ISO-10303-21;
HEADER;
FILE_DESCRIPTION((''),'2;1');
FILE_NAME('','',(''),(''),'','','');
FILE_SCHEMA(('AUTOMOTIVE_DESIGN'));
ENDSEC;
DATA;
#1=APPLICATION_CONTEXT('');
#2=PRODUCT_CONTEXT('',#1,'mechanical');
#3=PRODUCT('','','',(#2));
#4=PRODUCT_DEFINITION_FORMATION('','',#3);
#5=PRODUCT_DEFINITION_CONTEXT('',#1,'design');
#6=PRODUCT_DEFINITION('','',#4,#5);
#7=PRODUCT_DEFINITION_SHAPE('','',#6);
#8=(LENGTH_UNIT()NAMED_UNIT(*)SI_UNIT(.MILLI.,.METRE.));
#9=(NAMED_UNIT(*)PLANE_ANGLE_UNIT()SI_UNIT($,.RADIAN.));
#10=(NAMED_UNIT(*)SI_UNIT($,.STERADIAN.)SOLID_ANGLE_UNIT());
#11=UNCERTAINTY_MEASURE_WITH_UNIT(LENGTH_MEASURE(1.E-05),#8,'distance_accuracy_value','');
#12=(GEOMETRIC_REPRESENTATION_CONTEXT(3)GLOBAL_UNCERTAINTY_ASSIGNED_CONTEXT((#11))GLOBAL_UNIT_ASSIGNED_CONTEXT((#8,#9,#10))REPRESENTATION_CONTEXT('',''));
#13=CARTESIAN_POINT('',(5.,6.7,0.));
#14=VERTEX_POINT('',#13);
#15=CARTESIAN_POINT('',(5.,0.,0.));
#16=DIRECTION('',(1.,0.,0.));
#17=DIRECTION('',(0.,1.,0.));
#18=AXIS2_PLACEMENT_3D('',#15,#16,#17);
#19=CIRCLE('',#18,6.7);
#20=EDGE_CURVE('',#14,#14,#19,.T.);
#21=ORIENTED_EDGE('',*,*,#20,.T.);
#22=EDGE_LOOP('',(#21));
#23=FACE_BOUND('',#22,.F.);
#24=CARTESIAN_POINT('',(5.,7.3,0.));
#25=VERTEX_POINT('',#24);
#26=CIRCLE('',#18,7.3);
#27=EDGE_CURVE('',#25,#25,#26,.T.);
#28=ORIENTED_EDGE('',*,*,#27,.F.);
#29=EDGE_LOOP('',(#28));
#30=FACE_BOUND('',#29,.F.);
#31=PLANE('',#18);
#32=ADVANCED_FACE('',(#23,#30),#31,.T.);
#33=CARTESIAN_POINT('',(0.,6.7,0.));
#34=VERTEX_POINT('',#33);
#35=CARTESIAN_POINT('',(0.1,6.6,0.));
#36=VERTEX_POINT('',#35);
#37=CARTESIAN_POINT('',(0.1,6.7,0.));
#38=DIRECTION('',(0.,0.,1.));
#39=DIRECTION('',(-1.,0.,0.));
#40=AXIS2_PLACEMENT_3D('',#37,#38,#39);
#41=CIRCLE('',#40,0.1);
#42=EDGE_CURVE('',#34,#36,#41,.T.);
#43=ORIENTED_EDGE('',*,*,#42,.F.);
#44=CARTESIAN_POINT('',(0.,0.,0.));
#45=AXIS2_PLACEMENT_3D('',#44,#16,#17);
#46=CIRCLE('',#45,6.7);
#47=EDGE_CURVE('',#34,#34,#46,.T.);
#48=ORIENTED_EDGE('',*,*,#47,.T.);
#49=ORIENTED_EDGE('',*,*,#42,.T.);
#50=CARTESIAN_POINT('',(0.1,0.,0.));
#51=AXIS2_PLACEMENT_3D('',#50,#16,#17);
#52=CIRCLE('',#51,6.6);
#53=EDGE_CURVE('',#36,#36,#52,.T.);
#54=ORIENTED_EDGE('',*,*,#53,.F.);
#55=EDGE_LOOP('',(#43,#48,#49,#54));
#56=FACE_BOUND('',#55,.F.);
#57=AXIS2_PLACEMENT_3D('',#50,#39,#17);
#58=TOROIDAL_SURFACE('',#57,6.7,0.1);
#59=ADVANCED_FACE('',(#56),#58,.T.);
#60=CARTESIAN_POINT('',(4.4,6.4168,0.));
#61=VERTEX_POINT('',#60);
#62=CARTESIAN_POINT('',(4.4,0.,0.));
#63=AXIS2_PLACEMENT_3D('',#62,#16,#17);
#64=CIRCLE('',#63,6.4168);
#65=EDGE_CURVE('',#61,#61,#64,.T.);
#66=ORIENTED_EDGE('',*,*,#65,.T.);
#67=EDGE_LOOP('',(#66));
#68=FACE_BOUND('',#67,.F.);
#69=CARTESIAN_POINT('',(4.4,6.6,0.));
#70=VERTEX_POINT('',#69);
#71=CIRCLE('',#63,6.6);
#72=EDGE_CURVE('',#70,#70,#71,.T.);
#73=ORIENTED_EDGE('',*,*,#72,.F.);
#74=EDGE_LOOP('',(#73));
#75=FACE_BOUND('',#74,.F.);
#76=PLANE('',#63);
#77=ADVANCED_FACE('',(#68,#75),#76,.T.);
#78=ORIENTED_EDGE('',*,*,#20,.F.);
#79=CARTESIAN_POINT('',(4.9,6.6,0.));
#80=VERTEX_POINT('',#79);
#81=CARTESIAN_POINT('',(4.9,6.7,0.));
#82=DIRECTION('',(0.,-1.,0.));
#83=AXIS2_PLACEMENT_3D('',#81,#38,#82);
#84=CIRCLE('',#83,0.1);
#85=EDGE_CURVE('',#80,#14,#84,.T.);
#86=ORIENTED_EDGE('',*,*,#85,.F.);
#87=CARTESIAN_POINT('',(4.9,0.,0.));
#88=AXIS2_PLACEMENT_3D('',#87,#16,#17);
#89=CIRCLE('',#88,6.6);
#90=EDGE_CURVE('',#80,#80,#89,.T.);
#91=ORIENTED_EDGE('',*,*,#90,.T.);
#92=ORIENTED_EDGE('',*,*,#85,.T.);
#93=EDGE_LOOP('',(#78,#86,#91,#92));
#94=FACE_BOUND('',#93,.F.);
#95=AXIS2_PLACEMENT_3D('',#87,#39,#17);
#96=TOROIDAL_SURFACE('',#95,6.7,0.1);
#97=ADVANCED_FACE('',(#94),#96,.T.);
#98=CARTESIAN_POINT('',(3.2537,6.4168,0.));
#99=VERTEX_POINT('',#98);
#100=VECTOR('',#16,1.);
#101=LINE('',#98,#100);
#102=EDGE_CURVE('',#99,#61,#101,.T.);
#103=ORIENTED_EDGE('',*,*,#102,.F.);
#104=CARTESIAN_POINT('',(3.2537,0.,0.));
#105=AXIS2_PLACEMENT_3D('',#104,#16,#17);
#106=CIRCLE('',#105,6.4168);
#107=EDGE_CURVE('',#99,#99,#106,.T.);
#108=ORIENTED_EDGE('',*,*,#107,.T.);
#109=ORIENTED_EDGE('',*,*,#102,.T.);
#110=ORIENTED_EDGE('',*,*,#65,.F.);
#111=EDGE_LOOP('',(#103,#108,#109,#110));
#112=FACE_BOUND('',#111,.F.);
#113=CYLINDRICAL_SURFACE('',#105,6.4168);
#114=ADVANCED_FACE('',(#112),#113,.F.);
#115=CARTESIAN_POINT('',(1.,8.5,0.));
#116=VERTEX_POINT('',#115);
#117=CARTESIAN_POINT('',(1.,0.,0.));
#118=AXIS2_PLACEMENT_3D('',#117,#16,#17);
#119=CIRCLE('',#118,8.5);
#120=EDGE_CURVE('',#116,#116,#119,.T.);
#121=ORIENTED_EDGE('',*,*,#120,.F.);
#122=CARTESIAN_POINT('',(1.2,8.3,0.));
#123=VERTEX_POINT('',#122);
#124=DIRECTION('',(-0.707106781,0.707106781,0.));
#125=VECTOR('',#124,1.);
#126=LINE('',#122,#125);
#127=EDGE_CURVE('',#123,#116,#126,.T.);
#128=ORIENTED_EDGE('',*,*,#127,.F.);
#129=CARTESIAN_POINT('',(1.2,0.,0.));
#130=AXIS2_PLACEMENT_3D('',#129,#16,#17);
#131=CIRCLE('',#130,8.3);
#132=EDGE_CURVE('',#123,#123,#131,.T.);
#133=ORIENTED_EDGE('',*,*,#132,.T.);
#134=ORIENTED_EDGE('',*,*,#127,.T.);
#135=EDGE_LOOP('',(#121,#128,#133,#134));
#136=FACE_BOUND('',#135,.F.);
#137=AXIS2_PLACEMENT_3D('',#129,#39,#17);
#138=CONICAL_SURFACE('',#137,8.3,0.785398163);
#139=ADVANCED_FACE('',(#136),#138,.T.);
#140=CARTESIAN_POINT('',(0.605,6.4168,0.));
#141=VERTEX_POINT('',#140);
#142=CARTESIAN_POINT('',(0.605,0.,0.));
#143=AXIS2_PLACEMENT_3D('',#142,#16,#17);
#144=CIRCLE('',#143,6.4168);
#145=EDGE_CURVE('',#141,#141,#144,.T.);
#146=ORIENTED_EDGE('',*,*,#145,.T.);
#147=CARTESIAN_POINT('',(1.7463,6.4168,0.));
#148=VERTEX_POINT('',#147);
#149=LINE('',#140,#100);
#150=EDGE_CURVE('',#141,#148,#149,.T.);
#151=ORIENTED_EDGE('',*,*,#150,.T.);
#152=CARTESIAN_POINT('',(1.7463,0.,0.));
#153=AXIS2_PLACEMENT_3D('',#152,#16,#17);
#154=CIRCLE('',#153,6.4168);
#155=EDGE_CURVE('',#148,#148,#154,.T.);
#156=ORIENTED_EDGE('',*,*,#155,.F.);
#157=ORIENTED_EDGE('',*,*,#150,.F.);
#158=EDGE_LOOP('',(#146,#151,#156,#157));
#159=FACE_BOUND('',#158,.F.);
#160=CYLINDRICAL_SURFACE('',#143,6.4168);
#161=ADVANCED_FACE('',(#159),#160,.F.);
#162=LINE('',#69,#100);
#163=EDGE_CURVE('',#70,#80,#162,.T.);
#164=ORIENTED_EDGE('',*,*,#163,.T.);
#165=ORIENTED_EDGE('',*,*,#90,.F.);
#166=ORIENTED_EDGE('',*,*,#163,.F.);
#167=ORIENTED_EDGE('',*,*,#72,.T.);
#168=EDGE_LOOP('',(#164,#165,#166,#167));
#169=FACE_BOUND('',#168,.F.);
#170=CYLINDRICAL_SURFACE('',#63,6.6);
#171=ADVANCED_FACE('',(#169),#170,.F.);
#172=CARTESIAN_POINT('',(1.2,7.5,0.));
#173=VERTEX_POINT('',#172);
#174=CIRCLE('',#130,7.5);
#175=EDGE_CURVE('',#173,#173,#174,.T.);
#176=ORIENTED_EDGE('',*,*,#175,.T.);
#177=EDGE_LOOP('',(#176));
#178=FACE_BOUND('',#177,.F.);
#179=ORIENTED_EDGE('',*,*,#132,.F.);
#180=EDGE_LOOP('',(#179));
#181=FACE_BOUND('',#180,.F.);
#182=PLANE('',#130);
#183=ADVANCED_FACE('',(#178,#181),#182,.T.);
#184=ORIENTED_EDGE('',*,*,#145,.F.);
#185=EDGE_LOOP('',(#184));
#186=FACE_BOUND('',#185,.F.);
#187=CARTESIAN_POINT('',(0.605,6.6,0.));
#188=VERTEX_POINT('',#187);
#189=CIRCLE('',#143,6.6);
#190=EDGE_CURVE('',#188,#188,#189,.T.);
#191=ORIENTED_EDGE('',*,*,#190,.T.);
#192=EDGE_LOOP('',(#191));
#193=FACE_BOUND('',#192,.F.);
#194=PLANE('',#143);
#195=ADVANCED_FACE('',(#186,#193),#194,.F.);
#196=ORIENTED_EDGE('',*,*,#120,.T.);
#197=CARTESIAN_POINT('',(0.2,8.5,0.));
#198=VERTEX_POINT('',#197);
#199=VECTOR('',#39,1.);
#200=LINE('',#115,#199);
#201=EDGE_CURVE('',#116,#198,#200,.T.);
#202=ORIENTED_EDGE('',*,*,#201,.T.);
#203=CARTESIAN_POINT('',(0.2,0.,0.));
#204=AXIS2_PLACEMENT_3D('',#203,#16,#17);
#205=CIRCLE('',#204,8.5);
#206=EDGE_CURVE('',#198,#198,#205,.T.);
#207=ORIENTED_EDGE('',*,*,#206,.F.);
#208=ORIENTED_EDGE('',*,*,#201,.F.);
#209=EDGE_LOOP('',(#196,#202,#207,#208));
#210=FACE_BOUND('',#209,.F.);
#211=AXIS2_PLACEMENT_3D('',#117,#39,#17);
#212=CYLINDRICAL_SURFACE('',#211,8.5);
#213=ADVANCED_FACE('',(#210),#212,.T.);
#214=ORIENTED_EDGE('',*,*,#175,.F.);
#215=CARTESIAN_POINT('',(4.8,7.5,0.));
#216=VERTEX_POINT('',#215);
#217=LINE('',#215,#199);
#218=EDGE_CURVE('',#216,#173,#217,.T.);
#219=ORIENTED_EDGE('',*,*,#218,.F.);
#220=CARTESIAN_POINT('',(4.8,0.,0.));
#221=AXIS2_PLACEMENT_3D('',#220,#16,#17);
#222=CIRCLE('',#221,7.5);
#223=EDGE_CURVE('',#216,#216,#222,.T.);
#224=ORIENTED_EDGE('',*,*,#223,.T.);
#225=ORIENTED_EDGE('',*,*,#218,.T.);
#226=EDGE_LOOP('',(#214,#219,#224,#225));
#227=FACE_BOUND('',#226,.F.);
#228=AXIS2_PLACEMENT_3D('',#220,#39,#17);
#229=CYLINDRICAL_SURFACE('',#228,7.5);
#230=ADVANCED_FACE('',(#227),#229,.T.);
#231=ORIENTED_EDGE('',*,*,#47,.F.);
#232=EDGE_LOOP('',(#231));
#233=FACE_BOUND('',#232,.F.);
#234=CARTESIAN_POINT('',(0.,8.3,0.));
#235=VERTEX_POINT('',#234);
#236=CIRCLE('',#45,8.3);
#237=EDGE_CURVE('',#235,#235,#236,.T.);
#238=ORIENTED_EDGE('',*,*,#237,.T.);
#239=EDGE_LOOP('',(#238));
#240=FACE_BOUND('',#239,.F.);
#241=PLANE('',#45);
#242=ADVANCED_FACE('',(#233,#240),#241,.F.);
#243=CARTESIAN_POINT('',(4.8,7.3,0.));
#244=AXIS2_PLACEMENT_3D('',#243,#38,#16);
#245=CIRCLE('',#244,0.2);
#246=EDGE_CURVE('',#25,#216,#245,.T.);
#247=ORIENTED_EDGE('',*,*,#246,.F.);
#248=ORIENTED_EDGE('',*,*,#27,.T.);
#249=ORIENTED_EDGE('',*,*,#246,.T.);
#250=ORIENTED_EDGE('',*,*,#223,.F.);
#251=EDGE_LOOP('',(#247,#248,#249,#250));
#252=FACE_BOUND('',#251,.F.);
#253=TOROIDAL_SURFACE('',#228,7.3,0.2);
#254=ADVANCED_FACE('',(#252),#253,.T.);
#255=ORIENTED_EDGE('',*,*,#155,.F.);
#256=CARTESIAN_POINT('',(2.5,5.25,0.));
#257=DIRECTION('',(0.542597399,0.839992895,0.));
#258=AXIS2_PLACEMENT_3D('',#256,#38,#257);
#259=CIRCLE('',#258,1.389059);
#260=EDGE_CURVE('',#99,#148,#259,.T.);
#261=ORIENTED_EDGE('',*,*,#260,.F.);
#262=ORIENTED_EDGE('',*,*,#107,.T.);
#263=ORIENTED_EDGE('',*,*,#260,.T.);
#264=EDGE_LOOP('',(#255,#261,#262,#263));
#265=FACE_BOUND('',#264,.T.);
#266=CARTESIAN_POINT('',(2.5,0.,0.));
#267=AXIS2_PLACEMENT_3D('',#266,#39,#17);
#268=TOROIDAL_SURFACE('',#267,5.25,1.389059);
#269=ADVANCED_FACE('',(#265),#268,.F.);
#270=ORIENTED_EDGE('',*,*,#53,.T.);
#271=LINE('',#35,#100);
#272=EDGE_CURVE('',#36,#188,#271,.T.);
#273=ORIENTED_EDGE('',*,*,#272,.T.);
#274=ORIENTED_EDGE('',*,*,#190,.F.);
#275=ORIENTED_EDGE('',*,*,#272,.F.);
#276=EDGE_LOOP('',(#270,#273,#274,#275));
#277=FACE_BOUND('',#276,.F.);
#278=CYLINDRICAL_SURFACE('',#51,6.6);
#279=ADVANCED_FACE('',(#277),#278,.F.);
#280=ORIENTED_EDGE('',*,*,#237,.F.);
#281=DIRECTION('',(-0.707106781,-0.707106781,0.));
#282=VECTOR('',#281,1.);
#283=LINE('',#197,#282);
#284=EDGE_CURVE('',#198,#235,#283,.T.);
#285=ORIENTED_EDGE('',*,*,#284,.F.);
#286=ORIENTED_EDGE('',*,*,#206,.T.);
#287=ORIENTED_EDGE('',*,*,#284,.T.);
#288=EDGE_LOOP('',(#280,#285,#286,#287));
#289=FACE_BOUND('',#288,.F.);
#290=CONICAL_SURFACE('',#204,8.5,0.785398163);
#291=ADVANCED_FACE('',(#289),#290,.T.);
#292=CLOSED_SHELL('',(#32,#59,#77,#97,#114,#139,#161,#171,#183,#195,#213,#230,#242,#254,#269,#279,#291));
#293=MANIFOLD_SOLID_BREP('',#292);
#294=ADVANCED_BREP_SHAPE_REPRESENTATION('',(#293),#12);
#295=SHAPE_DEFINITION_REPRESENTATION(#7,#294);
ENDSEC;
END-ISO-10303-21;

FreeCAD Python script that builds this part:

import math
import FreeCAD as App
import Part
import Sketcher
Q = App.Units.Quantity

doc = App.newDocument("Part")
body = doc.addObject("PartDesign::Body", "Body")

sketch1 = doc.addObject("Sketcher::SketchObject", "Sketch")
body.addObject(sketch1)
sketch1.AttachmentSupport = (doc.XY_Plane, [""])
sketch1.MapMode = "FlatFace"
sketch1.addGeometry(Part.LineSegment(App.Vector(0.2, 8.5, 0), App.Vector(0, 8.3, 0)), False)
sketch1.addGeometry(Part.LineSegment(App.Vector(0, 8.3, 0), App.Vector(0, 6.7, 0)), False)
sketch1.addGeometry(Part.ArcOfCircle(Part.Circle(App.Vector(0.1, 6.7, 0), App.Vector(0, 0, 1), 0.1), math.radians(180), math.radians(270)), False)
sketch1.addGeometry(Part.LineSegment(App.Vector(0.1, 6.6, 0), App.Vector(0.6, 6.6, 0)), False)
sketch1.addGeometry(Part.LineSegment(App.Vector(0.6, 6.6, 0), App.Vector(0.6, 6.42, 0)), False)
sketch1.addGeometry(Part.LineSegment(App.Vector(0.6, 6.42, 0), App.Vector(1.75, 6.42, 0)), False)
sketch1.addGeometry(Part.ArcOfCircle(Part.Circle(App.Vector(2.5, 5.25, 0), App.Vector(0, 0, 1), 1.39), math.radians(57), math.radians(123)), False)
sketch1.addGeometry(Part.LineSegment(App.Vector(3.25, 6.42, 0), App.Vector(4.4, 6.42, 0)), False)
sketch1.addGeometry(Part.LineSegment(App.Vector(4.4, 6.42, 0), App.Vector(4.4, 6.6, 0)), False)
sketch1.addGeometry(Part.LineSegment(App.Vector(4.4, 6.6, 0), App.Vector(4.9, 6.6, 0)), False)
sketch1.addGeometry(Part.ArcOfCircle(Part.Circle(App.Vector(4.9, 6.7, 0), App.Vector(0, 0, 1), 0.1), math.radians(-90), math.radians(0)), False)
sketch1.addGeometry(Part.LineSegment(App.Vector(5, 6.7, 0), App.Vector(5, 7.3, 0)), False)
sketch1.addGeometry(Part.ArcOfCircle(Part.Circle(App.Vector(4.8, 7.3, 0), App.Vector(0, 0, 1), 0.2), math.radians(0), math.radians(90)), False)
sketch1.addGeometry(Part.LineSegment(App.Vector(4.8, 7.5, 0), App.Vector(1.2, 7.5, 0)), False)
sketch1.addGeometry(Part.LineSegment(App.Vector(1.2, 7.5, 0), App.Vector(1.2, 8.3, 0)), False)
sketch1.addGeometry(Part.LineSegment(App.Vector(1.2, 8.3, 0), App.Vector(1, 8.5, 0)), False)
sketch1.addGeometry(Part.LineSegment(App.Vector(1, 8.5, 0), App.Vector(0.2, 8.5, 0)), False)
sketch1.addConstraint(Sketcher.Constraint("Coincident", 0, 2, 1, 1))
sketch1.addConstraint(Sketcher.Constraint("Tangent", 1, 2, 2, 1))
sketch1.addConstraint(Sketcher.Constraint("Tangent", 2, 2, 3, 1))
sketch1.addConstraint(Sketcher.Constraint("Coincident", 3, 2, 4, 1))
sketch1.addConstraint(Sketcher.Constraint("Coincident", 4, 2, 5, 1))
sketch1.addConstraint(Sketcher.Constraint("Coincident", 5, 2, 6, 2))
sketch1.addConstraint(Sketcher.Constraint("Coincident", 6, 1, 7, 1))
sketch1.addConstraint(Sketcher.Constraint("Coincident", 7, 2, 8, 1))
sketch1.addConstraint(Sketcher.Constraint("Coincident", 8, 2, 9, 1))
sketch1.addConstraint(Sketcher.Constraint("Tangent", 9, 2, 10, 1))
sketch1.addConstraint(Sketcher.Constraint("Tangent", 10, 2, 11, 1))
sketch1.addConstraint(Sketcher.Constraint("Tangent", 11, 2, 12, 1))
sketch1.addConstraint(Sketcher.Constraint("Tangent", 12, 2, 13, 1))
sketch1.addConstraint(Sketcher.Constraint("Coincident", 13, 2, 14, 1))
sketch1.addConstraint(Sketcher.Constraint("Coincident", 14, 2, 15, 1))
sketch1.addConstraint(Sketcher.Constraint("Coincident", 15, 2, 16, 1))
sketch1.addConstraint(Sketcher.Constraint("Coincident", 16, 2, 0, 1))
sketch1.addConstraint(Sketcher.Constraint("Vertical", 1))
sketch1.addConstraint(Sketcher.Constraint("Horizontal", 3))
sketch1.addConstraint(Sketcher.Constraint("Vertical", 4))
sketch1.addConstraint(Sketcher.Constraint("Horizontal", 5))
sketch1.addConstraint(Sketcher.Constraint("Horizontal", 7))
sketch1.addConstraint(Sketcher.Constraint("Vertical", 8))
sketch1.addConstraint(Sketcher.Constraint("Horizontal", 9))
sketch1.addConstraint(Sketcher.Constraint("Vertical", 11))
sketch1.addConstraint(Sketcher.Constraint("Horizontal", 13))
sketch1.addConstraint(Sketcher.Constraint("Vertical", 14))
sketch1.addConstraint(Sketcher.Constraint("Horizontal", 16))
sketch1.addConstraint(Sketcher.Constraint("Equal", 2, 10))
sketch1.addConstraint(Sketcher.Constraint("PointOnObject", 0, 2, -2))
sketch1.addConstraint(Sketcher.Constraint("Perpendicular", 0, 15))
sketch1.addConstraint(Sketcher.Constraint("Horizontal", 2, 3, 10, 3))
sketch1.addConstraint(Sketcher.Constraint("Horizontal", 5, 2, 6, 1))
sketch1.addConstraint(Sketcher.Constraint("Horizontal", 0, 2, 14, 2))
sketch1.addConstraint(Sketcher.Constraint("Equal", 16, 14))
sketch1.addConstraint(Sketcher.Constraint("Equal", 0, 15))
sketch1.addConstraint(Sketcher.Constraint("Radius", 2, Q("0.1 mm")))
sketch1.addConstraint(Sketcher.Constraint("Radius", 12, Q("0.2 mm")))
sketch1.addConstraint(Sketcher.Constraint("DistanceX", 9, 1, 9, 2, Q("0.5 mm")))
sketch1.addConstraint(Sketcher.Constraint("DistanceX", 13, 2, 13, 1, Q("3.6 mm")))
sketch1.addConstraint(Sketcher.Constraint("DistanceX", 16, 2, 16, 1, Q("0.8 mm")))
sketch1.addConstraint(Sketcher.Constraint("DistanceY", 1, 2, 1, 1, Q("1.6 mm")))
sketch1.addConstraint(Sketcher.Constraint("DistanceX", -1, 1, 10, 2, Q("5 mm")))
sketch1.addConstraint(Sketcher.Constraint("Radius", 6, Q("1.389 mm")))
sketch1.addConstraint(Sketcher.Constraint("DistanceY", -1, 1, 2, 3, Q("6.7 mm")))
sketch1.addConstraint(Sketcher.Constraint("DistanceX", -1, 1, 6, 3, Q("2.5 mm")))
sketch1.addConstraint(Sketcher.Constraint("DistanceX", 3, 1, 3, 2, Q("0.505 mm")))
sketch1.addConstraint(Sketcher.Constraint("DistanceY", -1, 1, 6, 3, Q("5.25 mm")))
sketch1.addConstraint(Sketcher.Constraint("DistanceX", 5, 1, 5, 2, Q("1.1413 mm")))
revolution = doc.addObject("PartDesign::Revolution", "Revolution")
body.addObject(revolution)
revolution.Profile = sketch1
revolution.ReferenceAxis = (sketch1, ["H_Axis"])
revolution.Angle = 360

doc.recompute()
